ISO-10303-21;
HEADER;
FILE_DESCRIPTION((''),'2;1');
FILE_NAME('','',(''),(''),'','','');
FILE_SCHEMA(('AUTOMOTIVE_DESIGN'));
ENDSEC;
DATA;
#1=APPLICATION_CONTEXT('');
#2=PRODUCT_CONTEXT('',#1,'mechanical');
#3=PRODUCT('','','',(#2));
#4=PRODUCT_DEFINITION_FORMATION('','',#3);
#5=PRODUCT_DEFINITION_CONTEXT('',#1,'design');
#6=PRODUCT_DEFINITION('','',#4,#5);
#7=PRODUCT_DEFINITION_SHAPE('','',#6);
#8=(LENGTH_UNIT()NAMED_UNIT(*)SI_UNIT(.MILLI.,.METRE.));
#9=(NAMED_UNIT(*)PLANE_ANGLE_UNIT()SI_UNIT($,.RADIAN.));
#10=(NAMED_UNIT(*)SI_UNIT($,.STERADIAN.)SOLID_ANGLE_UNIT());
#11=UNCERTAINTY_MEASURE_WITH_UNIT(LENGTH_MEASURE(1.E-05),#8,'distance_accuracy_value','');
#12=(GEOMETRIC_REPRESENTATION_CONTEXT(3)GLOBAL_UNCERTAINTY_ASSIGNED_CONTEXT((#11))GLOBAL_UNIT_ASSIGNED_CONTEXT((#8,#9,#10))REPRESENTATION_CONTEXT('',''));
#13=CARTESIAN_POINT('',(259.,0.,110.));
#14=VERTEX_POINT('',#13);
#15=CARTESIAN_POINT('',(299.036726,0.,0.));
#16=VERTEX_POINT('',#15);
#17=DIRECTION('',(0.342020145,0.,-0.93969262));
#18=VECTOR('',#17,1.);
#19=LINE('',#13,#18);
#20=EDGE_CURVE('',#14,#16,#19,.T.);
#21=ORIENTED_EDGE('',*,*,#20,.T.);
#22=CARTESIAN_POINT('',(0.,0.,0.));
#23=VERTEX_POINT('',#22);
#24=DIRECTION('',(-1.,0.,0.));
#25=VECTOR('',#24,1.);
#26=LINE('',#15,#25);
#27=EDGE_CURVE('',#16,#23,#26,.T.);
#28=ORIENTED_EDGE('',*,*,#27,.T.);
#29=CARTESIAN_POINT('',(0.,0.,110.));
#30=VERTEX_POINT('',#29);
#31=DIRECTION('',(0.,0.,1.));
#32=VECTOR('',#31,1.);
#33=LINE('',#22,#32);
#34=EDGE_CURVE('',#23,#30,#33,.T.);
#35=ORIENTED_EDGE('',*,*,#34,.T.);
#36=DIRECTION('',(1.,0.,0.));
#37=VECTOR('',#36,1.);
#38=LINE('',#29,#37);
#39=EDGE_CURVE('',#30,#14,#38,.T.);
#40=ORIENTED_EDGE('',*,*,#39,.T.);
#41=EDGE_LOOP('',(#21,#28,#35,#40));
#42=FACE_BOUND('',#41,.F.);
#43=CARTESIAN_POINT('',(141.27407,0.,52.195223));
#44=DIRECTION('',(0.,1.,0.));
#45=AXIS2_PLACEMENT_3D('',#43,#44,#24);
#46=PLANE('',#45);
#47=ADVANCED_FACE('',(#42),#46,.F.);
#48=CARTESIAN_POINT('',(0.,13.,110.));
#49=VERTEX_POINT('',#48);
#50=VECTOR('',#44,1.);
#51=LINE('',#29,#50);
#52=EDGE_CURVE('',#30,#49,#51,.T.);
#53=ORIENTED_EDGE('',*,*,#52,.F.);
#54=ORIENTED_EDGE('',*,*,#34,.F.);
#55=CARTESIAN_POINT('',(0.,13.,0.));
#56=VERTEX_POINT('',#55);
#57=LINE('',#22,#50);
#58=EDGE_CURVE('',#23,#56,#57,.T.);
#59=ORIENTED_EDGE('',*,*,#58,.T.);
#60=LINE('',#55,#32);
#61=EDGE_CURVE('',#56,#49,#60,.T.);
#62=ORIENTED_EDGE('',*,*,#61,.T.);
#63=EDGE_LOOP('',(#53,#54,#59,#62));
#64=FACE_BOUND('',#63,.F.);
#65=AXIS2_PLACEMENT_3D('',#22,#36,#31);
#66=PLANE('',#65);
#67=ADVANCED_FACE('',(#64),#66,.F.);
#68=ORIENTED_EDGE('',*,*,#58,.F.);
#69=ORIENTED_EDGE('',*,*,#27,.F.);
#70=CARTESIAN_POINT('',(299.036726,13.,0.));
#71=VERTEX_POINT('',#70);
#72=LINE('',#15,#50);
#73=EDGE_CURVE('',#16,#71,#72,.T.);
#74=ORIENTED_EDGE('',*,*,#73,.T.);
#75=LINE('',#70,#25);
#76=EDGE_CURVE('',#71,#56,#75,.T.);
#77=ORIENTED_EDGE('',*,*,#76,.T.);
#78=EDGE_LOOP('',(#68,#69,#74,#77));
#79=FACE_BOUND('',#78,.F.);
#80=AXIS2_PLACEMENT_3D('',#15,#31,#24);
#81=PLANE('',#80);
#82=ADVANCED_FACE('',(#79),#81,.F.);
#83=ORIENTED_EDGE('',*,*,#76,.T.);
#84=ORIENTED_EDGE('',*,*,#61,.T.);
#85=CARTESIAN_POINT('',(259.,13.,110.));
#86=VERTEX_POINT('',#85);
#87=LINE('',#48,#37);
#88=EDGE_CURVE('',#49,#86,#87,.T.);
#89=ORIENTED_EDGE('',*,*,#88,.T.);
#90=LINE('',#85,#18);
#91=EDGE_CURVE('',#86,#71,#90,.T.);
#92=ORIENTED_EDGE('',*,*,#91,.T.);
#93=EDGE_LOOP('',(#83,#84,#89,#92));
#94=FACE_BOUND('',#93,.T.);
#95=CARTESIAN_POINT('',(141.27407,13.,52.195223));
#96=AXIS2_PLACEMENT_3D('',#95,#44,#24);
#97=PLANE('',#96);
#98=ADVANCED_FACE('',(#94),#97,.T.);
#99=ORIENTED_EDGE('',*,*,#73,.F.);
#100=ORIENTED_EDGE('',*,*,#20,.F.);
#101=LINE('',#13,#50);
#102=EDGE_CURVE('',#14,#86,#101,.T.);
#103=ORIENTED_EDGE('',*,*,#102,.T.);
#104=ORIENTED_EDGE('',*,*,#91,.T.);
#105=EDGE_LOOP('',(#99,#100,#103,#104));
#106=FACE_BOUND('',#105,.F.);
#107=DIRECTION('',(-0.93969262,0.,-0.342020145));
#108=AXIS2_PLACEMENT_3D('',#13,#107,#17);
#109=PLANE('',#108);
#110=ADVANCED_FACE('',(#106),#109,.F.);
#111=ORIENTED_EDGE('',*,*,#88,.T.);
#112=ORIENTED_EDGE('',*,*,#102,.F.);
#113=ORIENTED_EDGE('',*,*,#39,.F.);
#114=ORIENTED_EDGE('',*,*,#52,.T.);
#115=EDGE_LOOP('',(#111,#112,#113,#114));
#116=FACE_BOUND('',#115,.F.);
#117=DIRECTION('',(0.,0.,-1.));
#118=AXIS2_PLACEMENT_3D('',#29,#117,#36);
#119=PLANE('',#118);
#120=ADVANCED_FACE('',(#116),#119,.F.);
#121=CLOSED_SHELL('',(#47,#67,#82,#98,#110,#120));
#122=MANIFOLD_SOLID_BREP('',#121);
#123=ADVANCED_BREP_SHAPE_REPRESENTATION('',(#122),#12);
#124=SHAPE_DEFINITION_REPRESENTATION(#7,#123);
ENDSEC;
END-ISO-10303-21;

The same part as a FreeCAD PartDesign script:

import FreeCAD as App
import Part
import Sketcher
Q = App.Units.Quantity

doc = App.newDocument("Part")
body = doc.addObject("PartDesign::Body", "Body")

sketch1 = body.newObject("Sketcher::SketchObject", "Sketch")
sketch1.AttachmentSupport = (doc.getObject("XZ_Plane"), [""])
sketch1.MapMode = "FlatFace"
sketch1.addGeometry([
    Part.LineSegment(App.Vector(0, 0, 0), App.Vector(299.036726, 0, 0)),
    Part.LineSegment(App.Vector(299.036726, 0, 0), App.Vector(259, 110, 0)),
    Part.LineSegment(App.Vector(259, 110, 0), App.Vector(0, 110, 0)),
    Part.LineSegment(App.Vector(0, 110, 0), App.Vector(0, 0, 0)),
], False)
sketch1.addConstraint([
    Sketcher.Constraint("Coincident", 0, 2, 1, 1),
    Sketcher.Constraint("Coincident", 1, 2, 2, 1),
    Sketcher.Constraint("Coincident", 2, 2, 3, 1),
    Sketcher.Constraint("Coincident", 3, 2, 0, 1),
    Sketcher.Constraint("Horizontal", 0),
    Sketcher.Constraint("Horizontal", 2),
    Sketcher.Constraint("Vertical", 3),
    Sketcher.Constraint("Coincident", 3, 2, -1, 1),
    Sketcher.Constraint("DistanceX", 2, 2, 2, 1, Q("259 mm")),
    Sketcher.Constraint("DistanceY", 3, 2, 3, 1, Q("110 mm")),
    Sketcher.Constraint("Angle", 1, Q("110 deg")),
])
pad1 = body.newObject("PartDesign::Pad", "Pad")
pad1.Profile = sketch1
pad1.Length = 13
pad1.Reversed = True

doc.recompute()
